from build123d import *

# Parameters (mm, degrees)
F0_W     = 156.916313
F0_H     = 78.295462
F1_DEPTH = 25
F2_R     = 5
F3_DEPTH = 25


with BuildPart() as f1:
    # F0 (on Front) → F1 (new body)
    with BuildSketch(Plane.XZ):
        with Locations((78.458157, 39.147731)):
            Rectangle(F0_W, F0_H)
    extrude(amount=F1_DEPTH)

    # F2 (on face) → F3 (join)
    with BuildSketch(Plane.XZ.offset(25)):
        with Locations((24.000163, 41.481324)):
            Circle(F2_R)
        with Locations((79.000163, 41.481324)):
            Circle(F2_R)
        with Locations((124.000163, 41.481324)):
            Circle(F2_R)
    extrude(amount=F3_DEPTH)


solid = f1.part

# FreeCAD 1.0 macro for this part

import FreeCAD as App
import Part
import Sketcher

V = App.Vector

doc = App.newDocument("Part")
body = doc.addObject("PartDesign::Body", "Body")

# Sketch on XZ plane
sketch1 = body.newObject("Sketcher::SketchObject", "Sketch")
sketch1.AttachmentSupport = (doc.getObject("XZ_Plane"), [""])
sketch1.MapMode = "FlatFace"
sketch1.addGeometry([
    Part.LineSegment(V(0, 78.295462, 0), V(0, 0, 0)),
    Part.LineSegment(V(0, 0, 0), V(156.916314, 0, 0)),
    Part.LineSegment(V(156.916314, 0, 0), V(156.916314, 78.295462, 0)),
    Part.LineSegment(V(156.916314, 78.295462, 0), V(0, 78.295462, 0)),
], False)
sketch1.addConstraint([
    Sketcher.Constraint("Coincident", 0, 2, 1, 1),
    Sketcher.Constraint("Coincident", 1, 2, 2, 1),
    Sketcher.Constraint("Coincident", 2, 2, 3, 1),
    Sketcher.Constraint("Coincident", 3, 2, 0, 1),
    Sketcher.Constraint("Vertical", 0),
    Sketcher.Constraint("Horizontal", 1),
    Sketcher.Constraint("Vertical", 2),
    Sketcher.Constraint("Horizontal", 3),
    Sketcher.Constraint("Coincident", 0, 2, -1, 1),
    Sketcher.Constraint("DistanceY", 0, 2, 0, 1, 78.295462),
    Sketcher.Constraint("DistanceX", 1, 1, 1, 2, 156.916313),
])
pad1 = body.newObject("PartDesign::Pad", "Pad")
pad1.Profile = sketch1
pad1.Length = 25

# Sketch on XZ plane
sketch2 = body.newObject("Sketcher::SketchObject", "Sketch001")
sketch2.AttachmentSupport = (doc.getObject("XZ_Plane"), [""])
sketch2.MapMode = "FlatFace"
sketch2.AttachmentOffset = App.Placement(V(0, 0, 25), App.Rotation())
sketch2.addGeometry([
    Part.Circle(V(24.000163, 41.481324, 0), V(0, 0, 1), 5),
    Part.Circle(V(79.000163, 41.481324, 0), V(0, 0, 1), 5),
    Part.Circle(V(124.000163, 41.481324, 0), V(0, 0, 1), 5),
], False)
sketch2.addConstraint([
    Sketcher.Constraint("Equal", 0, 1),
    Sketcher.Constraint("Equal", 1, 2),
    Sketcher.Constraint("Horizontal", 0, 3, 1, 3),
    Sketcher.Constraint("Horizontal", 1, 3, 2, 3),
    Sketcher.Constraint("Diameter", 0, 10.0),
    Sketcher.Constraint("DistanceX", 0, 3, 1, 3, 55.0),
    Sketcher.Constraint("DistanceX", 1, 3, 2, 3, 45.0),
    Sketcher.Constraint("DistanceX", -1, 1, 0, 3, 24.000163),
    Sketcher.Constraint("DistanceY", -1, 1, 0, 3, 41.481324),
])
pad2 = body.newObject("PartDesign::Pad", "Pad001")
pad2.Profile = sketch2
pad2.Length = 25

doc.recompute()
